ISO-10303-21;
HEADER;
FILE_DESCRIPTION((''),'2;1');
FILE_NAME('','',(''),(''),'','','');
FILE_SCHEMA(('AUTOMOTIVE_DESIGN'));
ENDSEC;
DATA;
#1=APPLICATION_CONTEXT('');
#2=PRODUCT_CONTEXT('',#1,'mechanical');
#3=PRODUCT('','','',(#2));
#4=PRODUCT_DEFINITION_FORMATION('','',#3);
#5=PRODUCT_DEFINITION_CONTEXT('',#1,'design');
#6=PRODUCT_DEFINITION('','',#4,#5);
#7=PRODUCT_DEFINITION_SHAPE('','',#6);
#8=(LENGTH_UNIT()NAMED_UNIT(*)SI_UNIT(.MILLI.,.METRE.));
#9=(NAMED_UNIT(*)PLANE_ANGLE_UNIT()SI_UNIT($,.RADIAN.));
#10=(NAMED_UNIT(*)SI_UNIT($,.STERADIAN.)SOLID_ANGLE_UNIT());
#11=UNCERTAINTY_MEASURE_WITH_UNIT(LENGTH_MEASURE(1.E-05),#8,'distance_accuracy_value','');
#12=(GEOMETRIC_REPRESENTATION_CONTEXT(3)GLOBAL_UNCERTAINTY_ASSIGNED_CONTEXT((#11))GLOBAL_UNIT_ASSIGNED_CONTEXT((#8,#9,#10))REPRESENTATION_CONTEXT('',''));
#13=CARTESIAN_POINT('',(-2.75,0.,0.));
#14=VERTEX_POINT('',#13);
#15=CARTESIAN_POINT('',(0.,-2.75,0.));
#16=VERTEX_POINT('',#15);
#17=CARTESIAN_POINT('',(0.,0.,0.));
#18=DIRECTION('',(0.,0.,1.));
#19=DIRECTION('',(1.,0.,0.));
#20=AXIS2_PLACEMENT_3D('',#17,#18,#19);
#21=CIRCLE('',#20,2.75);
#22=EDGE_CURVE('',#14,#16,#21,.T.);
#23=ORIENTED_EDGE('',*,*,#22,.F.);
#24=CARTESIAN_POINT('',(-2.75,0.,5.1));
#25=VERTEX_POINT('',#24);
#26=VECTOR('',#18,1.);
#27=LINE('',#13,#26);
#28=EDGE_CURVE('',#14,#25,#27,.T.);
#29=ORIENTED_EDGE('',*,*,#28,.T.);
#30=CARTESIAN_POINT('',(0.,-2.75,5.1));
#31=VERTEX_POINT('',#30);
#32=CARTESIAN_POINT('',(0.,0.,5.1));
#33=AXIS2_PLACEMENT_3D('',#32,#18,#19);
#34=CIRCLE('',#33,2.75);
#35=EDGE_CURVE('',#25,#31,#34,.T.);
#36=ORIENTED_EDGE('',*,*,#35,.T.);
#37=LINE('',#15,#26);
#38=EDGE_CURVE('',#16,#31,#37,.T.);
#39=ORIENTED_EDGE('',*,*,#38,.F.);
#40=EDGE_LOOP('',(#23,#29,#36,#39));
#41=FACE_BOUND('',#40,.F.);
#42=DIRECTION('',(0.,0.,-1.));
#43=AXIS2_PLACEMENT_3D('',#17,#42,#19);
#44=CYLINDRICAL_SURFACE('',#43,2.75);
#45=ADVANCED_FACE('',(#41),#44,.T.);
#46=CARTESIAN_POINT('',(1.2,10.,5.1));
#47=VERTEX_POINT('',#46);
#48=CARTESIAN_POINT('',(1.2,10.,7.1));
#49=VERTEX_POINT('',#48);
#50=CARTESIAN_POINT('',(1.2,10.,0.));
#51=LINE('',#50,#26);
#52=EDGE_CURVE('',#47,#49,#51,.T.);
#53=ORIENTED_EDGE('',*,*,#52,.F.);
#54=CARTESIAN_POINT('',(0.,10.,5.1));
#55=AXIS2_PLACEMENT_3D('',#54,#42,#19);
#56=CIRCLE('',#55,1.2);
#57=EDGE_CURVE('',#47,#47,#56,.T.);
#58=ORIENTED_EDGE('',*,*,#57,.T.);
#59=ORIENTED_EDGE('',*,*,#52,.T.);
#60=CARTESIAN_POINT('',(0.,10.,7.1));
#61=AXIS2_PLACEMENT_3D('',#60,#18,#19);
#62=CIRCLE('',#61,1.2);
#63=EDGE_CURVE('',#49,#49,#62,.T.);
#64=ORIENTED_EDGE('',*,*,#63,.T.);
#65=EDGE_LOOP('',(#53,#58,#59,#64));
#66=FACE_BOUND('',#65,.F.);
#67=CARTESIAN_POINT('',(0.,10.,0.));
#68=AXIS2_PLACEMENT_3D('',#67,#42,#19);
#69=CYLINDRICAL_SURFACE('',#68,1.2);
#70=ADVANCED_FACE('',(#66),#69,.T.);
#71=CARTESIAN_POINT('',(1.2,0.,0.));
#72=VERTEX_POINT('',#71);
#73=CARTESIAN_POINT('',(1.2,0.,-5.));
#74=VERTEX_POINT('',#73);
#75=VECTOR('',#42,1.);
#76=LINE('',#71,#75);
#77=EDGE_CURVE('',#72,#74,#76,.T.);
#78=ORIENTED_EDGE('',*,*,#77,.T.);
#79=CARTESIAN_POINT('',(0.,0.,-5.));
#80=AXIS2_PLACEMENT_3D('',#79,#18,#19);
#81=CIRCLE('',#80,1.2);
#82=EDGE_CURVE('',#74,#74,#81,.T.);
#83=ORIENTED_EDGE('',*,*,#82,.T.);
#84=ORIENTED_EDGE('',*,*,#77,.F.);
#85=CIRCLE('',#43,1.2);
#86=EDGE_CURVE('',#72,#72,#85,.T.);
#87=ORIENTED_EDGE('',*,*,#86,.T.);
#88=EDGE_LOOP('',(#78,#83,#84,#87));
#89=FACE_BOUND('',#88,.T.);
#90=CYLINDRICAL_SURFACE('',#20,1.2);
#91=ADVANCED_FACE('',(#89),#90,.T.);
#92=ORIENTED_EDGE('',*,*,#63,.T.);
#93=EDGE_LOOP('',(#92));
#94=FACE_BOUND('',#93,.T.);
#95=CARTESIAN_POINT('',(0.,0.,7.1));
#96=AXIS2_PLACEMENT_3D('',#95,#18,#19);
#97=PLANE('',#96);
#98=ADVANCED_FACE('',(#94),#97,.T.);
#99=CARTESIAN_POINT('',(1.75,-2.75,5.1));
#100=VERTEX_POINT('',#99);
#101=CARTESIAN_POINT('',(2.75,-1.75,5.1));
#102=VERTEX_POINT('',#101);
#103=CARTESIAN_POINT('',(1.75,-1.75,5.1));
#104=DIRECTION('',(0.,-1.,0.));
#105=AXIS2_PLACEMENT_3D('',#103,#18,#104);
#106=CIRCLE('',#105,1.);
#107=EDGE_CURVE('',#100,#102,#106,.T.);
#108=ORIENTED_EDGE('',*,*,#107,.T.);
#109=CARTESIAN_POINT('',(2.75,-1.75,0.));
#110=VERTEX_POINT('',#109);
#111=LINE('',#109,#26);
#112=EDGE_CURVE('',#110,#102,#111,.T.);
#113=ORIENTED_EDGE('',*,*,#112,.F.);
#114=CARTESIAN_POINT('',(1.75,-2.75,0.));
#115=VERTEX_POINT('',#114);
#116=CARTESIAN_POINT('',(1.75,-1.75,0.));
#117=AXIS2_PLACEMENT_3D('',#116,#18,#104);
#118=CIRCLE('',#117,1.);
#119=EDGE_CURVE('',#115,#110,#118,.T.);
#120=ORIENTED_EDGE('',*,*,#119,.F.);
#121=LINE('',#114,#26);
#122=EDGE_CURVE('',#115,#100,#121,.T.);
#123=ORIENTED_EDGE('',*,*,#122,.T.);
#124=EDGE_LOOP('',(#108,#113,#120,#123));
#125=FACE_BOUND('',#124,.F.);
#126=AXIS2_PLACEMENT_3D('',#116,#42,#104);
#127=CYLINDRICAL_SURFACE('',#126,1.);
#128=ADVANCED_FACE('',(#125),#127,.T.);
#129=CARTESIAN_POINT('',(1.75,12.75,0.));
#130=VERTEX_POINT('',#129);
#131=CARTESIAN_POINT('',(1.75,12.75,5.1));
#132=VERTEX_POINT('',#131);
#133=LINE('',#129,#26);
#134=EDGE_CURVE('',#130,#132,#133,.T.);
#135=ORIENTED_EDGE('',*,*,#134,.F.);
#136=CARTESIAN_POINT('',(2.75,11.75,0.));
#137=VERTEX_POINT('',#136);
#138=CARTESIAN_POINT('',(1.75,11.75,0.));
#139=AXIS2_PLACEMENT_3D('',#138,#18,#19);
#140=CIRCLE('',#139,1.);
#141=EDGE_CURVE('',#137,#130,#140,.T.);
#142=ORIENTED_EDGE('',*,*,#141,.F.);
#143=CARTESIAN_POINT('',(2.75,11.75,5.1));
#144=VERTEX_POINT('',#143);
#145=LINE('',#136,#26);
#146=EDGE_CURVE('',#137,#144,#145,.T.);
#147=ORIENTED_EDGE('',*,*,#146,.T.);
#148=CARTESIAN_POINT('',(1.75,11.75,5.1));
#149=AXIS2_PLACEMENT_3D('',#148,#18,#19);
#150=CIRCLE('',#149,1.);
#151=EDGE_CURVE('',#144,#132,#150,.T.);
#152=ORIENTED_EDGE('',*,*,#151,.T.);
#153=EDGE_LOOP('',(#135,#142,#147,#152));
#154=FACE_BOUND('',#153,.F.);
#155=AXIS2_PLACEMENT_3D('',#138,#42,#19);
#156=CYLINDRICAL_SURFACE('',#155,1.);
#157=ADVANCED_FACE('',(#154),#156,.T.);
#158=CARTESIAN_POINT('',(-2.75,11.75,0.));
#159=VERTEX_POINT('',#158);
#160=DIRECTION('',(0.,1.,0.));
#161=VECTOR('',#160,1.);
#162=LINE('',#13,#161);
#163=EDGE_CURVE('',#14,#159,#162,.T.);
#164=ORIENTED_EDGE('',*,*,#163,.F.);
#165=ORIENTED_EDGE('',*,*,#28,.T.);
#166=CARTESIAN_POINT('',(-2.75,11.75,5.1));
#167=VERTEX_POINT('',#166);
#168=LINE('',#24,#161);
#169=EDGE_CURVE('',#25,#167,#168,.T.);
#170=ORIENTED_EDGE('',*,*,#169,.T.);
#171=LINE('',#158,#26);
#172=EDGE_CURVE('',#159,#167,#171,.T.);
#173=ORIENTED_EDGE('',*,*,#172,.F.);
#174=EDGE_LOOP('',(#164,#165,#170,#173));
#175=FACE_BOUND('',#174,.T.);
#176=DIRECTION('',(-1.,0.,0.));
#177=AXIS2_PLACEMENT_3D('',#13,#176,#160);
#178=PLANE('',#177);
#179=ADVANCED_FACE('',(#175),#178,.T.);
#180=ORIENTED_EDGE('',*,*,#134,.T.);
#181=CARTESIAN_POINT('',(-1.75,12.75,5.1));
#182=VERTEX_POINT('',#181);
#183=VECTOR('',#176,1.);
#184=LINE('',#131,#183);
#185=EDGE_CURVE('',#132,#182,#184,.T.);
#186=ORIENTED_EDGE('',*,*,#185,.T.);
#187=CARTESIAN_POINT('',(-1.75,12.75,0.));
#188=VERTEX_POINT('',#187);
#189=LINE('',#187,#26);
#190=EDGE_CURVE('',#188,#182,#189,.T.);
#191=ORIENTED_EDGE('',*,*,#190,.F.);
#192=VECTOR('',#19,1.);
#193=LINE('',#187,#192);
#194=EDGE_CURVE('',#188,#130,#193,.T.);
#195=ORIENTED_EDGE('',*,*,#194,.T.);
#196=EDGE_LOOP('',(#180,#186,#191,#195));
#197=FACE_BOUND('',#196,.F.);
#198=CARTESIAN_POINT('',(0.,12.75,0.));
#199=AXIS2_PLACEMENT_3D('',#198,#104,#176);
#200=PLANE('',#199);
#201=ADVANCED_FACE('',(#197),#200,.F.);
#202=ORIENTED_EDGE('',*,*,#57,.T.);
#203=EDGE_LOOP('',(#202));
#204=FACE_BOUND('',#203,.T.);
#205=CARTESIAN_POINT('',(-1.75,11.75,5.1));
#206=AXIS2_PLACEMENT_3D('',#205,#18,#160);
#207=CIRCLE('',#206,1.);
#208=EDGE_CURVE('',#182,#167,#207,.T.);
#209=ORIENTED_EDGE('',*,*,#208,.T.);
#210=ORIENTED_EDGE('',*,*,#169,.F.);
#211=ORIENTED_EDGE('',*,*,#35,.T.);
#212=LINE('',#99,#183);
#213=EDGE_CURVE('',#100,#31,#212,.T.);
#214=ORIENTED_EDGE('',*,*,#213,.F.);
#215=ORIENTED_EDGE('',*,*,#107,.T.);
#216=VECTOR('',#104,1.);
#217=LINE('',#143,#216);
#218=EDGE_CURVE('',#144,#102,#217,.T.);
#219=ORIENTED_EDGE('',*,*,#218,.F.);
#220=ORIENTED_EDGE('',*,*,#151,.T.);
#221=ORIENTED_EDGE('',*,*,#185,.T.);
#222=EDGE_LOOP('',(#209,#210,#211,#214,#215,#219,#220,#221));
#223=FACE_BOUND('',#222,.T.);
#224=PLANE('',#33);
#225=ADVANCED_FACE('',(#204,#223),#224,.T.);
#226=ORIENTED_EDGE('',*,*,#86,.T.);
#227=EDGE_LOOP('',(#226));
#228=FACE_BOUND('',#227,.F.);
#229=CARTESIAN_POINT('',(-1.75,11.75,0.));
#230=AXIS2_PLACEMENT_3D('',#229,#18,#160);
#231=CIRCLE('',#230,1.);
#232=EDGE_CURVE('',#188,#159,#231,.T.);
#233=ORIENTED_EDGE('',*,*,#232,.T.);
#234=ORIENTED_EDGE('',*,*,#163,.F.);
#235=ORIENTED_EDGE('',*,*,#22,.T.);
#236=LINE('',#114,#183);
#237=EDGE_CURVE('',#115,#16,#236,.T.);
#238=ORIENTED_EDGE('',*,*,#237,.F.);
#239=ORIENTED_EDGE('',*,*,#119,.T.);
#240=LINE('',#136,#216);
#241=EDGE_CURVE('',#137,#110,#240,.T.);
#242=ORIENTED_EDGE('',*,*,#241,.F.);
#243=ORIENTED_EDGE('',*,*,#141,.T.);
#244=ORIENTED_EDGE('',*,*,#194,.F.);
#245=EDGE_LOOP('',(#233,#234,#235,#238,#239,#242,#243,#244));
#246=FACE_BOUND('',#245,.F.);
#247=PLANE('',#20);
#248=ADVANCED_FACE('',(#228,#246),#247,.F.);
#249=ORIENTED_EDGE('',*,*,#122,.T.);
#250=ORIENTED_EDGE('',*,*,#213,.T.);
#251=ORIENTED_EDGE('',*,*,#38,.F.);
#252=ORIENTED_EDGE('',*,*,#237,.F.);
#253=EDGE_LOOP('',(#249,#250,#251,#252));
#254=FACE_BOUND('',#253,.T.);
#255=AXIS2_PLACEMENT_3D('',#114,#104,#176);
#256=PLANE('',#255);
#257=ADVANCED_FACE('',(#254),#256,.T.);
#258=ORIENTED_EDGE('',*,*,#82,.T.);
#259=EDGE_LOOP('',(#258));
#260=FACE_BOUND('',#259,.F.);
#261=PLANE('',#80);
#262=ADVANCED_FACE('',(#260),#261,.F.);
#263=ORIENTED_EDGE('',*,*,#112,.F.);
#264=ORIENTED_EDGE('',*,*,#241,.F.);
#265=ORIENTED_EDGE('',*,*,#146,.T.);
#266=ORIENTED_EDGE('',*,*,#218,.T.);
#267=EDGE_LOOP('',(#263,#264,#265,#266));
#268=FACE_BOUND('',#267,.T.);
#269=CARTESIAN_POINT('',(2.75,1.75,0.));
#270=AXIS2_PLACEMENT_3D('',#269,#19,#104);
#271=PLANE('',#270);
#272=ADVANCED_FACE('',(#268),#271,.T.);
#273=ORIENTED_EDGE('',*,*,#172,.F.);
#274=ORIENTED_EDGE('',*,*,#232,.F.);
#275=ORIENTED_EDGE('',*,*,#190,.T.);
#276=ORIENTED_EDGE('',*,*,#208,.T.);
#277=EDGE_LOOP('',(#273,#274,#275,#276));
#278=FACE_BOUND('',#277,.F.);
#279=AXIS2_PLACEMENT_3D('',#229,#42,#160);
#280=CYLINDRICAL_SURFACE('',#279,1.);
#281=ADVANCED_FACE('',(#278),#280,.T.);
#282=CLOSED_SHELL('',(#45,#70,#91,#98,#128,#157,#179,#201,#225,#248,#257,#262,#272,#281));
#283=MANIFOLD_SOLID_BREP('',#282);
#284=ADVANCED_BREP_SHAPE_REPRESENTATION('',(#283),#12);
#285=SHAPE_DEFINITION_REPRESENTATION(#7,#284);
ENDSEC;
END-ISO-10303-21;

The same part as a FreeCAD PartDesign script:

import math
import FreeCAD as App
import Part
import Sketcher

V = App.Vector
Q = App.Units.Quantity

doc = App.newDocument("Part")
body = doc.addObject("PartDesign::Body", "Body")

# Sketch on XY plane
sketch1 = doc.addObject("Sketcher::SketchObject", "Sketch")
body.addObject(sketch1)
sketch1.AttachmentSupport = (doc.XY_Plane, [""])
sketch1.MapMode = "FlatFace"
sketch1.addGeometry(Part.Circle(V(0, 0, 0), V(0, 0, 1), 1.2), False)
sketch1.addConstraint([
    Sketcher.Constraint("Coincident", 0, 3, -1, 1),
    Sketcher.Constraint("Diameter", 0, Q("2.4 mm")),
])
pad1 = doc.addObject("PartDesign::Pad", "Pad")
body.addObject(pad1)
pad1.Profile = sketch1
pad1.Length = 5
pad1.Reversed = True

# Sketch on XY plane
sketch2 = doc.addObject("Sketcher::SketchObject", "Sketch001")
body.addObject(sketch2)
sketch2.AttachmentSupport = (doc.XY_Plane, [""])
sketch2.MapMode = "FlatFace"
sketch2.addGeometry([
    Part.ArcOfCircle(Part.Circle(V(0, 0, 0), V(0, 0, 1), 2.8), math.radians(180), math.radians(270)),  # 0
    Part.LineSegment(V(0, -2.8, 0), V(1.8, -2.8, 0)),  # 1
    Part.ArcOfCircle(Part.Circle(V(1.8, -1.8, 0), V(0, 0, 1), 1), math.radians(-90), math.radians(0)),  # 2
    Part.LineSegment(V(2.8, -1.8, 0), V(2.8, 11.8, 0)),  # 3
    Part.ArcOfCircle(Part.Circle(V(1.8, 11.8, 0), V(0, 0, 1), 1), math.radians(0), math.radians(90)),  # 4
    Part.LineSegment(V(1.8, 12.8, 0), V(-1.8, 12.8, 0)),  # 5
    Part.ArcOfCircle(Part.Circle(V(-1.8, 11.8, 0), V(0, 0, 1), 1), math.radians(90), math.radians(180)),  # 6
    Part.LineSegment(V(-2.8, 11.8, 0), V(-2.8, 0, 0)),  # 7
], False)
sketch2.addConstraint([
    Sketcher.Constraint("Tangent", 0, 2, 1, 1),
    Sketcher.Constraint("Tangent", 1, 2, 2, 1),
    Sketcher.Constraint("Tangent", 2, 2, 3, 1),
    Sketcher.Constraint("Tangent", 3, 2, 4, 1),
    Sketcher.Constraint("Tangent", 4, 2, 5, 1),
    Sketcher.Constraint("Tangent", 5, 2, 6, 1),
    Sketcher.Constraint("Tangent", 6, 2, 7, 1),
    Sketcher.Constraint("Tangent", 7, 2, 0, 1),
    Sketcher.Constraint("Horizontal", 1),
    Sketcher.Constraint("Vertical", 3),
    Sketcher.Constraint("Horizontal", 5),
    Sketcher.Constraint("Vertical", 7),
    Sketcher.Constraint("Coincident", 0, 3, -1, 1),
    Sketcher.Constraint("Equal", 2, 4),
    Sketcher.Constraint("Equal", 4, 6),
    Sketcher.Constraint("Radius", 2, Q("1 mm")),
    Sketcher.Constraint("Radius", 0, Q("2.75 mm")),
    Sketcher.Constraint("DistanceX", 6, 2, 3, 2, Q("5.5 mm")),
    Sketcher.Constraint("DistanceY", 3, 1, 3, 2, Q("13.5 mm")),
])
pad2 = doc.addObject("PartDesign::Pad", "Pad001")
body.addObject(pad2)
pad2.Profile = sketch2
pad2.Length = 5.1

# Sketch on XY plane
sketch3 = doc.addObject("Sketcher::SketchObject", "Sketch002")
body.addObject(sketch3)
sketch3.AttachmentSupport = (doc.XY_Plane, [""])
sketch3.MapMode = "FlatFace"
sketch3.addGeometry(Part.Circle(V(0, 10, 0), V(0, 0, 1), 1.2), False)
sketch3.addConstraint([
    Sketcher.Constraint("PointOnObject", 0, 3, -2),
    Sketcher.Constraint("Diameter", 0, Q("2.4 mm")),
    Sketcher.Constraint("DistanceY", -1, 1, 0, 3, Q("10 mm")),
])
pad3 = doc.addObject("PartDesign::Pad", "Pad002")
body.addObject(pad3)
pad3.Profile = sketch3
pad3.Length = 7.1

doc.recompute()
